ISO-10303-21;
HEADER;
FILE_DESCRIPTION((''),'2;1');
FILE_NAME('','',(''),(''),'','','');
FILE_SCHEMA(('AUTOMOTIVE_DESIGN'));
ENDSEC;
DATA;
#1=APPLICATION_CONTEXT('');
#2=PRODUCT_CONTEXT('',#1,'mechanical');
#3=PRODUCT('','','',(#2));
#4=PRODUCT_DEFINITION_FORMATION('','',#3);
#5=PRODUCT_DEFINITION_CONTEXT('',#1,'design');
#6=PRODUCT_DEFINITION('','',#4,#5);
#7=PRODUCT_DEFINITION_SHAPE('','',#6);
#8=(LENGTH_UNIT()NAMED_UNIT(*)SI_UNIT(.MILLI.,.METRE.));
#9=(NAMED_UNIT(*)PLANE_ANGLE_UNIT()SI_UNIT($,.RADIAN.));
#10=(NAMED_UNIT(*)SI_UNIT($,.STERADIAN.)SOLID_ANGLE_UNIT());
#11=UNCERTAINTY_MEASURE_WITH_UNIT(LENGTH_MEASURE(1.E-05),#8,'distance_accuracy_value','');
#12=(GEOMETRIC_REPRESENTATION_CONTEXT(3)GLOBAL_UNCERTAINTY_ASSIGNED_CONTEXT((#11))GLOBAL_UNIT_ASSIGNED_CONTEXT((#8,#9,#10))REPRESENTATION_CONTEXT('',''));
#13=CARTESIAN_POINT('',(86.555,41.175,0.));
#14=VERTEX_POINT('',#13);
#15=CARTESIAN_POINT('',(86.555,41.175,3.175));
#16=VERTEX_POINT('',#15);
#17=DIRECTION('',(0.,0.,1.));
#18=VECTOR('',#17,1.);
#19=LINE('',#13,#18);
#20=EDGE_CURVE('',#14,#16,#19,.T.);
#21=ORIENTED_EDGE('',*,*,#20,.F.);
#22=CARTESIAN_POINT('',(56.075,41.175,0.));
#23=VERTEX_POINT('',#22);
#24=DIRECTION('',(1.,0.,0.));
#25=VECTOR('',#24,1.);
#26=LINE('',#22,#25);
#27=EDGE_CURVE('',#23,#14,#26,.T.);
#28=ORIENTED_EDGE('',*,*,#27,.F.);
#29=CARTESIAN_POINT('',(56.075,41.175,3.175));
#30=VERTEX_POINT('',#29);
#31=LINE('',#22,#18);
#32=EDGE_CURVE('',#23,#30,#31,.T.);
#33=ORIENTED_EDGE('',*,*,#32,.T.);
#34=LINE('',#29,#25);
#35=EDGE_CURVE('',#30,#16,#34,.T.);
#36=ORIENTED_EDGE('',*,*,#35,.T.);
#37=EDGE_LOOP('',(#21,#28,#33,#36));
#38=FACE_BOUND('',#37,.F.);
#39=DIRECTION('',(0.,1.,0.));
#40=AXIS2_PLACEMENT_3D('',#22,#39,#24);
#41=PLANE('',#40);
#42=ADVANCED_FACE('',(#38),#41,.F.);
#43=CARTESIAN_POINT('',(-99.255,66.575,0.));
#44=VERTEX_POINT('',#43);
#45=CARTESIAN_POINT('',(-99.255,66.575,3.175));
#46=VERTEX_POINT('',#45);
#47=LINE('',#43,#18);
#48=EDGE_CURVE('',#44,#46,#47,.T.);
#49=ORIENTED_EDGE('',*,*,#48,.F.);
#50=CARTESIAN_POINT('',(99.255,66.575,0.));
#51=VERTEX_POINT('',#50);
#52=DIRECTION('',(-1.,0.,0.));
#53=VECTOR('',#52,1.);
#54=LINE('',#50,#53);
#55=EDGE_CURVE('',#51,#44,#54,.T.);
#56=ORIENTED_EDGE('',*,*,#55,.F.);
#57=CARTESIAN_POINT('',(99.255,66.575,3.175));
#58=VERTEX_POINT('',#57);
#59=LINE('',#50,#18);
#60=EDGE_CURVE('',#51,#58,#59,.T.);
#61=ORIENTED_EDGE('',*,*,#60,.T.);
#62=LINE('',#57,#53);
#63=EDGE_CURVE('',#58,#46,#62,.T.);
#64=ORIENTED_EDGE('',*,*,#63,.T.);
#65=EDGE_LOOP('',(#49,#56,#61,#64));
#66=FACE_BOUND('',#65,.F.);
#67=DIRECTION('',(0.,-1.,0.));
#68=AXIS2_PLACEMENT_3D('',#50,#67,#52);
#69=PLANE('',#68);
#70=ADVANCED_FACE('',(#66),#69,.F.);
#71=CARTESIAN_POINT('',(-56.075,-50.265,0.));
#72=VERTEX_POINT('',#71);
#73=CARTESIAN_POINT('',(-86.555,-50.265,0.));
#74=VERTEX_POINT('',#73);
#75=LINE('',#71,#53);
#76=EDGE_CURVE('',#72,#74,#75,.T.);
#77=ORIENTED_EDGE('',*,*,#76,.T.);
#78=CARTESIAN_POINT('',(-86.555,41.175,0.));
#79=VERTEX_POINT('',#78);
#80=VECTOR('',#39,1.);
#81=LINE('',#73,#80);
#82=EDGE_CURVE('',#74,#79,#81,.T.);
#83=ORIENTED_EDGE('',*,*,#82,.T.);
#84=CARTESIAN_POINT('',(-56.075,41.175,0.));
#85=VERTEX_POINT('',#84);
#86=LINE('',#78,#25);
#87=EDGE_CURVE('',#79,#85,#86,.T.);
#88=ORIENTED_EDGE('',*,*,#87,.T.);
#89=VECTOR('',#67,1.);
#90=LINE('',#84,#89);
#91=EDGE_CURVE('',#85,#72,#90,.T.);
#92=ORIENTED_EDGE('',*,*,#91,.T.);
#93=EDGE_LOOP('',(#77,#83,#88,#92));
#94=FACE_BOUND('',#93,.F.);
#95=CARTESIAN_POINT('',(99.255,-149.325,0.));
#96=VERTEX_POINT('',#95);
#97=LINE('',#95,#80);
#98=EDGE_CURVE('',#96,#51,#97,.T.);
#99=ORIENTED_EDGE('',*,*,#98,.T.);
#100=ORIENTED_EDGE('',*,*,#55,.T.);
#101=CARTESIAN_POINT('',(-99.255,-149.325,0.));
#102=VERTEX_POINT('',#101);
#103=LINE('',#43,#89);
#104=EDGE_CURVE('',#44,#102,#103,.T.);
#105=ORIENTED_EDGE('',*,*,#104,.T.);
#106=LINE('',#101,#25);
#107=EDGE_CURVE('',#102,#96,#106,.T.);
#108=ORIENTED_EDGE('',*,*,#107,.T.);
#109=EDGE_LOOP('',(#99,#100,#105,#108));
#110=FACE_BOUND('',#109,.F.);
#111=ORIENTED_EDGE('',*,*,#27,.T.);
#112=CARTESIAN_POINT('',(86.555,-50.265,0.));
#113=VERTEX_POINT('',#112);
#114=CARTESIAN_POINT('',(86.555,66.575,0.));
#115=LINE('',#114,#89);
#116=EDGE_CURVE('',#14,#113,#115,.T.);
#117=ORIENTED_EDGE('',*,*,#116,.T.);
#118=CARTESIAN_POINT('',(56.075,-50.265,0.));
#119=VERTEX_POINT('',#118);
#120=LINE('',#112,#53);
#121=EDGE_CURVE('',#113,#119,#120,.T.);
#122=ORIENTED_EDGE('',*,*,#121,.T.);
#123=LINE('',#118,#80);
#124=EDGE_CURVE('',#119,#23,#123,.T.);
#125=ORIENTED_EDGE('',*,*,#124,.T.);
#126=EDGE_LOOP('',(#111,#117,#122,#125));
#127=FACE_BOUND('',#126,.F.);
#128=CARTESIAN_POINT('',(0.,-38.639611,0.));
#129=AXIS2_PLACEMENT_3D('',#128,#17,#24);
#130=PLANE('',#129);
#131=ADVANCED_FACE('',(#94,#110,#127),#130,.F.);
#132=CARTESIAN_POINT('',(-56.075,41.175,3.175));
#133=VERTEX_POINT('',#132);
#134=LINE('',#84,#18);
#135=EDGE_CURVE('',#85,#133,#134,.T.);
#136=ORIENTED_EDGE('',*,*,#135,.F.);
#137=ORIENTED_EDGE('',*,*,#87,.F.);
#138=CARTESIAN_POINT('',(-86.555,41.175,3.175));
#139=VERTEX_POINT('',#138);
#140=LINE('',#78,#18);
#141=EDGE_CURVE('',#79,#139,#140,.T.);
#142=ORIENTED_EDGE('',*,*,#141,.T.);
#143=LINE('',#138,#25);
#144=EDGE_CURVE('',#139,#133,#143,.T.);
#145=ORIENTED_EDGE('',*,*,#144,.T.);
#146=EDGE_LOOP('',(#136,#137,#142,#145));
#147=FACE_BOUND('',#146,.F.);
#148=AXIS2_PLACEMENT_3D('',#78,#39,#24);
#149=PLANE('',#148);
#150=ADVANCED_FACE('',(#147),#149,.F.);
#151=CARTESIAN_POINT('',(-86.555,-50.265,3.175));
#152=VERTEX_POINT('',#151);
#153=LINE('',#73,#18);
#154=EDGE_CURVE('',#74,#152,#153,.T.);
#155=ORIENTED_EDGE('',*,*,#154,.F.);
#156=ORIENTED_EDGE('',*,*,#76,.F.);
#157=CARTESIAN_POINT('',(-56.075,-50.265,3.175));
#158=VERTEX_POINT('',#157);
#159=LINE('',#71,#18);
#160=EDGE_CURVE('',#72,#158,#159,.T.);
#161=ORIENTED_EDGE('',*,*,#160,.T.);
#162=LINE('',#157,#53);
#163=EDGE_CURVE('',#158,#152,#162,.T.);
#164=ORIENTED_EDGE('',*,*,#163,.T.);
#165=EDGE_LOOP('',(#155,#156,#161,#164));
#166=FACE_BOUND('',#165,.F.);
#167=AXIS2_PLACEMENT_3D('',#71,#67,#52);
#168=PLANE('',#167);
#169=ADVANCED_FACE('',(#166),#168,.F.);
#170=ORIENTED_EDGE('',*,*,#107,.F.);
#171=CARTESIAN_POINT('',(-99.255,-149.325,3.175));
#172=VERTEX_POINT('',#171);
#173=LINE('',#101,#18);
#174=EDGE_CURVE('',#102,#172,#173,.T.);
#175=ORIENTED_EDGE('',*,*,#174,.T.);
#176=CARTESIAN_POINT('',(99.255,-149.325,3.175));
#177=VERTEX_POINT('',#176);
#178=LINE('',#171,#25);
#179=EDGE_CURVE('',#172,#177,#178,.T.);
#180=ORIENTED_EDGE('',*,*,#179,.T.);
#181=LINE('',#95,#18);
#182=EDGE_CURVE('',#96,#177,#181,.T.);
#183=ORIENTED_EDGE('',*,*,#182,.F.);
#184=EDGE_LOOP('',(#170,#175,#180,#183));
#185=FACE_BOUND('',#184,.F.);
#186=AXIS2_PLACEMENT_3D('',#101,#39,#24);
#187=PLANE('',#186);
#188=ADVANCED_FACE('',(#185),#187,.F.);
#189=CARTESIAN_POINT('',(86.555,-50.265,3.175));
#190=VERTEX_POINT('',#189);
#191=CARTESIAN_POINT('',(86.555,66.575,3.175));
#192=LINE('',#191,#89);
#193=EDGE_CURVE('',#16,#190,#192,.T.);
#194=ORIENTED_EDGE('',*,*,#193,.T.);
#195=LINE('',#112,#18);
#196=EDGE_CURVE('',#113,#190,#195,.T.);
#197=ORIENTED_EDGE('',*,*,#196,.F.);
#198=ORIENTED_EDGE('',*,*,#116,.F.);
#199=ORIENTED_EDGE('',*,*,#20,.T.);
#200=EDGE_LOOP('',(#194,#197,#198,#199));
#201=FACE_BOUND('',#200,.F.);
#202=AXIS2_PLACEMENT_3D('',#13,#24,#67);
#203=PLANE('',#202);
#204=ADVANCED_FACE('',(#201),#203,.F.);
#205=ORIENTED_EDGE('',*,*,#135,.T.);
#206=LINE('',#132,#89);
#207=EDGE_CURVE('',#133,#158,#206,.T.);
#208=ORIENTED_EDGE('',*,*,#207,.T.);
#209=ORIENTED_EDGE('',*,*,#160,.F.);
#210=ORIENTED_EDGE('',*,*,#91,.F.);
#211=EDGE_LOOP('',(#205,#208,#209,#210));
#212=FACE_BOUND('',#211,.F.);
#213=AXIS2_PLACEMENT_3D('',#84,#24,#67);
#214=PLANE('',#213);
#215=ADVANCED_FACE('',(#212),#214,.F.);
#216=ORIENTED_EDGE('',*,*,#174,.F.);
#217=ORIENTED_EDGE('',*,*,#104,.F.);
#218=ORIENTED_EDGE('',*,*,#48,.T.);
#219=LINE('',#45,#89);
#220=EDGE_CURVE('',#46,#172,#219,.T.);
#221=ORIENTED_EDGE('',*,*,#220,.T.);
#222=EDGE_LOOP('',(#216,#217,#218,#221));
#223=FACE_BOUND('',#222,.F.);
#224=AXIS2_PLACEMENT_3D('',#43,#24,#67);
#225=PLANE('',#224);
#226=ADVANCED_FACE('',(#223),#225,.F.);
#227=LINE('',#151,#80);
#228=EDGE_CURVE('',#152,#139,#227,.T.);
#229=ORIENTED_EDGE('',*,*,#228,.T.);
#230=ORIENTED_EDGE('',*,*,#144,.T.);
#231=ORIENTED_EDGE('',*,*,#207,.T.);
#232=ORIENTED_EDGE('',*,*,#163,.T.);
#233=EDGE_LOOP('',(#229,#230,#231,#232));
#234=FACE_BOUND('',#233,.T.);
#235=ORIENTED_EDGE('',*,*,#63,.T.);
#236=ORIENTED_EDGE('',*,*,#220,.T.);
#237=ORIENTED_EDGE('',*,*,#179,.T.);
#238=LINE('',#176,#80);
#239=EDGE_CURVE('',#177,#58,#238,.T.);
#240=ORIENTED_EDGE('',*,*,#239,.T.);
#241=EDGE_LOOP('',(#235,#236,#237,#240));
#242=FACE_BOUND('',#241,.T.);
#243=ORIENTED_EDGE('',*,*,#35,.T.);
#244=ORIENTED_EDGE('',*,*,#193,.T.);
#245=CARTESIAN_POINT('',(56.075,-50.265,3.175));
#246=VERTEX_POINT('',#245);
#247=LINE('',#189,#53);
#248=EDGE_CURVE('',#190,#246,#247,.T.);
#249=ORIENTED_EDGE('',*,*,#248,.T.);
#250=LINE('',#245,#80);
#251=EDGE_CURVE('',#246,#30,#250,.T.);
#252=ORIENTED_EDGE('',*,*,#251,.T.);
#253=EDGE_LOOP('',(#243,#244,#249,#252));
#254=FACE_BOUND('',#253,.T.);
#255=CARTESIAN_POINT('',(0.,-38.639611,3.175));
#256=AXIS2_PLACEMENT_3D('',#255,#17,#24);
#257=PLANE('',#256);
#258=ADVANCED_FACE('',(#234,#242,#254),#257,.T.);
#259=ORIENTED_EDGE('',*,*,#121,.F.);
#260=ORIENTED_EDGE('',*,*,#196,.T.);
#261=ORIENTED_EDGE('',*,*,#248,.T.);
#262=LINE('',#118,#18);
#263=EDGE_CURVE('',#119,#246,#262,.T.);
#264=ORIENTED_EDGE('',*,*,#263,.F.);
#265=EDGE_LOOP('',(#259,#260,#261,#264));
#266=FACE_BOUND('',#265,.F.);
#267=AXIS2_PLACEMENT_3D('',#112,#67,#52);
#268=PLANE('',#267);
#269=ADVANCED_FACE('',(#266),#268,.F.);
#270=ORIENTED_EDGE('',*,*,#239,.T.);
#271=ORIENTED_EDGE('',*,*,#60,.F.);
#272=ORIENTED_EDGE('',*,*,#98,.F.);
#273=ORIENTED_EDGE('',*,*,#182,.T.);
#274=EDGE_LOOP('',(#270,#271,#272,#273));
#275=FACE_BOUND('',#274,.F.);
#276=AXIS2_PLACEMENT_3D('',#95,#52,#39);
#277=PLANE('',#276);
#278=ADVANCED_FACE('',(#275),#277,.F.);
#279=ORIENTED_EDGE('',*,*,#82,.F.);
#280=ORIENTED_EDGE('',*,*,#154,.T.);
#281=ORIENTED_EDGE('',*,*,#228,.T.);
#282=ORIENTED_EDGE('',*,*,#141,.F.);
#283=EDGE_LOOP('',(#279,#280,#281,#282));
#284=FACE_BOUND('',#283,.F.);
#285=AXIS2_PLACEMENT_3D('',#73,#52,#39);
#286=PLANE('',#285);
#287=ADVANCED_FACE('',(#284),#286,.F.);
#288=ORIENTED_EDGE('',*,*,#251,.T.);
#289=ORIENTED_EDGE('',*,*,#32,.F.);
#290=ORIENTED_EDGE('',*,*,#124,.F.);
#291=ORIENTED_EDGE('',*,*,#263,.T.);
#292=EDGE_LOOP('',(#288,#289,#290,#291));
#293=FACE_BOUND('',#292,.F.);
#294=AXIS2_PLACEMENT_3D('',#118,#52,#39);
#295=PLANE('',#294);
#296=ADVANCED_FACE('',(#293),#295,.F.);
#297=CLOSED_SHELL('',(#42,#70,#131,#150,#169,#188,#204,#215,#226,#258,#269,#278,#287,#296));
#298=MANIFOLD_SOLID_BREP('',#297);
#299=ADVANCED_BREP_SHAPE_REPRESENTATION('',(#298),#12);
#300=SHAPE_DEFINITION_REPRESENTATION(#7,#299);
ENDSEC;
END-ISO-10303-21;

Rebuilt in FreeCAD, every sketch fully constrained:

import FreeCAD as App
import Part
import Sketcher
Q = App.Units.Quantity

doc = App.newDocument("Part")
body = doc.addObject("PartDesign::Body", "Body")

# Sketch on XY plane
sketch1 = body.newObject("Sketcher::SketchObject", "Sketch")
sketch1.AttachmentSupport = (doc.getObject("XY_Plane"), [""])
sketch1.MapMode = "FlatFace"
sketch1.addGeometry(Part.LineSegment(App.Vector(-99, 67, 0), App.Vector(-99, -149, 0)), False)
sketch1.addGeometry(Part.LineSegment(App.Vector(-99, -149, 0), App.Vector(99, -149, 0)), False)
sketch1.addGeometry(Part.LineSegment(App.Vector(99, -149, 0), App.Vector(99, 67, 0)), False)
sketch1.addGeometry(Part.LineSegment(App.Vector(99, 67, 0), App.Vector(-99, 67, 0)), False)
sketch1.addGeometry(Part.LineSegment(App.Vector(-56, 41, 0), App.Vector(-56, -50, 0)), False)
sketch1.addGeometry(Part.LineSegment(App.Vector(-56, -50, 0), App.Vector(-87, -50, 0)), False)
sketch1.addGeometry(Part.LineSegment(App.Vector(-87, -50, 0), App.Vector(-87, 41, 0)), False)
sketch1.addGeometry(Part.LineSegment(App.Vector(-87, 41, 0), App.Vector(-56, 41, 0)), False)
sketch1.addGeometry(Part.LineSegment(App.Vector(87, 41, 0), App.Vector(87, -50, 0)), False)
sketch1.addGeometry(Part.LineSegment(App.Vector(87, -50, 0), App.Vector(56, -50, 0)), False)
sketch1.addGeometry(Part.LineSegment(App.Vector(56, -50, 0), App.Vector(56, 41, 0)), False)
sketch1.addGeometry(Part.LineSegment(App.Vector(56, 41, 0), App.Vector(87, 41, 0)), False)
sketch1.addConstraint(Sketcher.Constraint("Coincident", 0, 2, 1, 1))
sketch1.addConstraint(Sketcher.Constraint("Coincident", 1, 2, 2, 1))
sketch1.addConstraint(Sketcher.Constraint("Coincident", 2, 2, 3, 1))
sketch1.addConstraint(Sketcher.Constraint("Coincident", 3, 2, 0, 1))
sketch1.addConstraint(Sketcher.Constraint("Coincident", 4, 2, 5, 1))
sketch1.addConstraint(Sketcher.Constraint("Coincident", 5, 2, 6, 1))
sketch1.addConstraint(Sketcher.Constraint("Coincident", 6, 2, 7, 1))
sketch1.addConstraint(Sketcher.Constraint("Coincident", 7, 2, 4, 1))
sketch1.addConstraint(Sketcher.Constraint("Coincident", 8, 2, 9, 1))
sketch1.addConstraint(Sketcher.Constraint("Coincident", 9, 2, 10, 1))
sketch1.addConstraint(Sketcher.Constraint("Coincident", 10, 2, 11, 1))
sketch1.addConstraint(Sketcher.Constraint("Coincident", 11, 2, 8, 1))
sketch1.addConstraint(Sketcher.Constraint("Vertical", 0))
sketch1.addConstraint(Sketcher.Constraint("Horizontal", 1))
sketch1.addConstraint(Sketcher.Constraint("Vertical", 2))
sketch1.addConstraint(Sketcher.Constraint("Horizontal", 3))
sketch1.addConstraint(Sketcher.Constraint("Vertical", 4))
sketch1.addConstraint(Sketcher.Constraint("Horizontal", 5))
sketch1.addConstraint(Sketcher.Constraint("Vertical", 6))
sketch1.addConstraint(Sketcher.Constraint("Horizontal", 7))
sketch1.addConstraint(Sketcher.Constraint("Vertical", 8))
sketch1.addConstraint(Sketcher.Constraint("Horizontal", 9))
sketch1.addConstraint(Sketcher.Constraint("Vertical", 10))
sketch1.addConstraint(Sketcher.Constraint("Horizontal", 11))
sketch1.addConstraint(Sketcher.Constraint("Symmetric", 5, 2, 8, 2, -2))
sketch1.addConstraint(Sketcher.Constraint("Symmetric", 7, 2, 10, 2, -2))
sketch1.addConstraint(Sketcher.Constraint("DistanceX", 5, 2, 5, 1, Q("1.2 in")))
sketch1.addConstraint(Sketcher.Constraint("DistanceY", 0, 2, 0, 1, Q("8.5 in")))
sketch1.addConstraint(Sketcher.Constraint("DistanceY", 4, 2, 4, 1, Q("3.6 in")))
sketch1.addConstraint(Sketcher.Constraint("DistanceY", 6, 2, 3, 2, Q("1 in")))
sketch1.addConstraint(Sketcher.Constraint("DistanceX", 0, 2, 4, 2, Q("1.7 in")))
sketch1.addConstraint(Sketcher.Constraint("DistanceX", 8, 2, 1, 2, Q("0.5 in")))
sketch1.addConstraint(Sketcher.Constraint("DistanceX", 1, 1, 1, 2, Q("198.51 mm")))
sketch1.addConstraint(Sketcher.Constraint("DistanceY", 0, 2, -1, 1, Q("149.325 mm")))
pad1 = body.newObject("PartDesign::Pad", "Pad")
pad1.Profile = sketch1
pad1.Length = Q("0.125 in")

doc.recompute()
